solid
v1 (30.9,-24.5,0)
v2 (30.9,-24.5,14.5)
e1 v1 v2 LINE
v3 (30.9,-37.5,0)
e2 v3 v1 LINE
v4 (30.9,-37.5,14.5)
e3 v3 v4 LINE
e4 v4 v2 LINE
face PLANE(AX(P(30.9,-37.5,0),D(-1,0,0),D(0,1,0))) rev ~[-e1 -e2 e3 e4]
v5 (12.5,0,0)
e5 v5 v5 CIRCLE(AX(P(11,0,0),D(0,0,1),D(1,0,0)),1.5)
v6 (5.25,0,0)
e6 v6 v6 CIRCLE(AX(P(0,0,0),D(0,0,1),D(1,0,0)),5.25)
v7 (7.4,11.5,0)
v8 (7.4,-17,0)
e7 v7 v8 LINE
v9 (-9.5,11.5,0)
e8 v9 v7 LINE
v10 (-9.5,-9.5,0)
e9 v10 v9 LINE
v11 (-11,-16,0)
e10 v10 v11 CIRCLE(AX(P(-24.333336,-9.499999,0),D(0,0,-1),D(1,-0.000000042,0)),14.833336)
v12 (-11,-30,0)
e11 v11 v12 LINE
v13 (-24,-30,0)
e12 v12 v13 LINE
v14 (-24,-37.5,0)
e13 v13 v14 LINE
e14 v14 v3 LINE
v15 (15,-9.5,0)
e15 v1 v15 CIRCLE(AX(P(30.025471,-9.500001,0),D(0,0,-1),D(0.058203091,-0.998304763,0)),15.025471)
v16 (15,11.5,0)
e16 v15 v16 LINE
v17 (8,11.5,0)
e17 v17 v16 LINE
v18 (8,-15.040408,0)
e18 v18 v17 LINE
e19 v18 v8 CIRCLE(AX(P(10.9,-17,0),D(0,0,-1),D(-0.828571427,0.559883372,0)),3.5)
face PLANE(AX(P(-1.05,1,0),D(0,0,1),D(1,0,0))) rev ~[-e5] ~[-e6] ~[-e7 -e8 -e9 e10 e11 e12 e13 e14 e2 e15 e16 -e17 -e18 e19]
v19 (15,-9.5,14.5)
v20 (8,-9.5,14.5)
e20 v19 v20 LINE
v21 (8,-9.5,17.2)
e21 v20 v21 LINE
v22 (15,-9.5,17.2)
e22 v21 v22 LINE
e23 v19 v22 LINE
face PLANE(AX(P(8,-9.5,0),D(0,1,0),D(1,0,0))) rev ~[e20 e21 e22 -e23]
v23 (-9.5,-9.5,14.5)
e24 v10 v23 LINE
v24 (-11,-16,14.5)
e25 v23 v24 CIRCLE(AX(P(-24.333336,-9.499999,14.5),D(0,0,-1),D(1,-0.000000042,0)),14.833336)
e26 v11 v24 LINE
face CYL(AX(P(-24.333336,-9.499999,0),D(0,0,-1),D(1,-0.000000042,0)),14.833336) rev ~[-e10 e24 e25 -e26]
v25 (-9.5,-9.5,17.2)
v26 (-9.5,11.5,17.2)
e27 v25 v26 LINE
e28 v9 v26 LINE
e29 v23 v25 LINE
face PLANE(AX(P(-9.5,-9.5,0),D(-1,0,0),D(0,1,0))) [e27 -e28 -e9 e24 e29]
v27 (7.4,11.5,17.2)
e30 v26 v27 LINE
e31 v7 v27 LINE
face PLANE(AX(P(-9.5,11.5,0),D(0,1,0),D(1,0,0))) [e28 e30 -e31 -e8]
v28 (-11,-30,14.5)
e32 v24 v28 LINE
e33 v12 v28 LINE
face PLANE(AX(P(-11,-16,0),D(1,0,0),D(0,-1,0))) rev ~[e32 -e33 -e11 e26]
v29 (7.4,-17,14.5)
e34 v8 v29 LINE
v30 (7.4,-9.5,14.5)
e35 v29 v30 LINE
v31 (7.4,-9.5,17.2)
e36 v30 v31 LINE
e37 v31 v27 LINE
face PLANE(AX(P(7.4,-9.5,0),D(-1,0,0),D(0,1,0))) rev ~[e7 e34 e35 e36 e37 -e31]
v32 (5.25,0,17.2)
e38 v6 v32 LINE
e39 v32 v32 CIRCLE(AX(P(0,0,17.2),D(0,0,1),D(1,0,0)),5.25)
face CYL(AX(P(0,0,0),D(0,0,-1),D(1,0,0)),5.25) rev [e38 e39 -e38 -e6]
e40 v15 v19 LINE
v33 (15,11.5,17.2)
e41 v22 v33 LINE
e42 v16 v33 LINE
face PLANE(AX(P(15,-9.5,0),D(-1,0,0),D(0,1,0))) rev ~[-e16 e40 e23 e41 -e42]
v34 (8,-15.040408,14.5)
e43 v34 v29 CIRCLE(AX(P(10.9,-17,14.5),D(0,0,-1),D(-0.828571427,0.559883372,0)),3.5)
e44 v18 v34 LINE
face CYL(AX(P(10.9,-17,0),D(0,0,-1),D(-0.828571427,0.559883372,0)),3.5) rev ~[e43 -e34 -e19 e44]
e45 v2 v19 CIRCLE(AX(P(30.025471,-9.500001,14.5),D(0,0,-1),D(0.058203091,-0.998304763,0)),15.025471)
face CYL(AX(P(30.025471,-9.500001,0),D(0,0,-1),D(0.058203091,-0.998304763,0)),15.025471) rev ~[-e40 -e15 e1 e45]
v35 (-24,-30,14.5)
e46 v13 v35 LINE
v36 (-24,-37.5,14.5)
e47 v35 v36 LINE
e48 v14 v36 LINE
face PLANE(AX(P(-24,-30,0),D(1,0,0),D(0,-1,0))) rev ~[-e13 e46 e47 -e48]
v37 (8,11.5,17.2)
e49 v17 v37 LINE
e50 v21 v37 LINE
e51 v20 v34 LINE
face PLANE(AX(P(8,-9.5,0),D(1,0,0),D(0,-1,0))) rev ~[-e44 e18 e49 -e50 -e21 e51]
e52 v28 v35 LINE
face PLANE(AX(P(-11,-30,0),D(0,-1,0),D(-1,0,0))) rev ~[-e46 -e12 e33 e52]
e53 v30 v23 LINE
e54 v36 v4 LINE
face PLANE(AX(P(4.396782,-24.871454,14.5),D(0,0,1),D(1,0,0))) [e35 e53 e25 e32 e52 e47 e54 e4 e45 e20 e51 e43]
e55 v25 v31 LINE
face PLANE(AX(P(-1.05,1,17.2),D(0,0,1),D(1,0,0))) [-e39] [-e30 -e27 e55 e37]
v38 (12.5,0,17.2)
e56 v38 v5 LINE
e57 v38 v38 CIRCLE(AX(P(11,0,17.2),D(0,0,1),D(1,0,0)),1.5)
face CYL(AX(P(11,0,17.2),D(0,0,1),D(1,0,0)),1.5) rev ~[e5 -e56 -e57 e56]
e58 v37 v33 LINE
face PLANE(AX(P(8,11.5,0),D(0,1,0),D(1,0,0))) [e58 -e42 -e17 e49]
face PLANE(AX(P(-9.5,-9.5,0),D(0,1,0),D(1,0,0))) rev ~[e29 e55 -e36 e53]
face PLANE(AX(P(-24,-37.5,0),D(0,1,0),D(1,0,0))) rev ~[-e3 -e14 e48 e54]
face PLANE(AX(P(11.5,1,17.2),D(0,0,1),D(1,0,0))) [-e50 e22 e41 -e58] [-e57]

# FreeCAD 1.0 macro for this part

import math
import FreeCAD as App
import Part
import Sketcher

V = App.Vector


def add_polygon(sketch, points):
    """Adds a closed chain of lines whose ends are joined by coincident constraints."""
    first, n = sketch.GeometryCount, len(points)
    for a, b in zip(points, points[1:] + points[:1]):
        sketch.addGeometry(Part.LineSegment(App.Vector(*a, 0), App.Vector(*b, 0)), False)
    for i in range(n):
        sketch.addConstraint(Sketcher.Constraint("Coincident", first + i, 2, first + (i + 1) % n, 1))

doc = App.newDocument("Part")
body = doc.addObject("PartDesign::Body", "Body")

# Sketch on XY plane
sketch1 = doc.addObject("Sketcher::SketchObject", "Sketch")
body.addObject(sketch1)
sketch1.AttachmentSupport = (doc.XY_Plane, [""])
sketch1.MapMode = "FlatFace"
sketch1.addGeometry([
    Part.LineSegment(V(7.4, -9.5, 0), V(-9.5, -9.5, 0)),  # 0
    Part.ArcOfCircle(Part.Circle(V(-24.3, -9.5, 0), V(0, 0, 1), 14.8), math.radians(-26), math.radians(0)),  # 1
    Part.LineSegment(V(-11, -16, 0), V(-11, -30, 0)),  # 2
    Part.LineSegment(V(-11, -30, 0), V(-24, -30, 0)),  # 3
    Part.LineSegment(V(-24, -30, 0), V(-24, -37.5, 0)),  # 4
    Part.LineSegment(V(-24, -37.5, 0), V(30.9, -37.5, 0)),  # 5
    Part.LineSegment(V(30.9, -37.5, 0), V(30.9, -24.5, 0)),  # 6
    Part.ArcOfCircle(Part.Circle(V(30, -9.5, 0), V(0, 0, 1), 15), math.radians(180), math.radians(273)),  # 7
    Part.LineSegment(V(15, -9.5, 0), V(8, -9.5, 0)),  # 8
    Part.LineSegment(V(8, -9.5, 0), V(8, -15, 0)),  # 9
    Part.ArcOfCircle(Part.Circle(V(10.9, -17, 0), V(0, 0, 1), 3.5), math.radians(-180), math.radians(146)),  # 10
    Part.LineSegment(V(7.4, -17, 0), V(7.4, -9.5, 0)),  # 11
], False)
sketch1.addConstraint([
    Sketcher.Constraint("Coincident", 0, 2, 1, 2),
    Sketcher.Constraint("Coincident", 1, 1, 2, 1),
    Sketcher.Constraint("Coincident", 2, 2, 3, 1),
    Sketcher.Constraint("Coincident", 3, 2, 4, 1),
    Sketcher.Constraint("Coincident", 4, 2, 5, 1),
    Sketcher.Constraint("Coincident", 5, 2, 6, 1),
    Sketcher.Constraint("Coincident", 6, 2, 7, 2),
    Sketcher.Constraint("Coincident", 7, 1, 8, 1),
    Sketcher.Constraint("Coincident", 8, 2, 9, 1),
    Sketcher.Constraint("Coincident", 9, 2, 10, 2),
    Sketcher.Constraint("Tangent", 10, 1, 11, 1),
    Sketcher.Constraint("Coincident", 11, 2, 0, 1),
    Sketcher.Constraint("Horizontal", 0),
    Sketcher.Constraint("Vertical", 2),
    Sketcher.Constraint("Horizontal", 3),
    Sketcher.Constraint("Vertical", 4),
    Sketcher.Constraint("Horizontal", 5),
    Sketcher.Constraint("Vertical", 6),
    Sketcher.Constraint("Horizontal", 8),
    Sketcher.Constraint("Vertical", 9),
    Sketcher.Constraint("Vertical", 11),
    Sketcher.Constraint("Horizontal", 1, 3, 7, 3),
    Sketcher.Constraint("Horizontal", 7, 3, 0, 2),
    Sketcher.Constraint("Horizontal", 0, 2, 7, 1),
    Sketcher.Constraint("Equal", 3, 6),
    Sketcher.Constraint("Equal", 4, 11),
    Sketcher.Constraint("Radius", 10, 3.5),
    Sketcher.Constraint("DistanceX", 3, 2, 3, 1, 13.0),
    Sketcher.Constraint("DistanceX", 8, 2, 8, 1, 7.0),
    Sketcher.Constraint("DistanceY", 2, 2, 2, 1, 14.0),
    Sketcher.Constraint("DistanceX", 0, 2, 0, 1, 16.9),
    Sketcher.Constraint("DistanceX", 5, 1, 5, 2, 54.9),
    Sketcher.Constraint("DistanceY", 4, 2, 4, 1, 7.5),
    Sketcher.Constraint("DistanceY", 10, 3, -1, 1, 17.0),
    Sketcher.Constraint("DistanceX", 1, 1, -1, 1, 11.0),
    Sketcher.Constraint("DistanceY", 1, 1, -1, 1, 16.0),
    Sketcher.Constraint("DistanceX", -1, 1, 7, 1, 15.0),
    Sketcher.Constraint("DistanceX", 10, 3, 5, 2, 20.0),
])
pad1 = doc.addObject("PartDesign::Pad", "Pad")
body.addObject(pad1)
pad1.Profile = sketch1
pad1.Length = 14.5

# Sketch on XY plane
sketch2 = doc.addObject("Sketcher::SketchObject", "Sketch001")
body.addObject(sketch2)
sketch2.AttachmentSupport = (doc.XY_Plane, [""])
sketch2.MapMode = "FlatFace"
add_polygon(sketch2, [(-10, 12), (-10, -10), (7, -10), (7, 12)])  # lines 0-3
sketch2.addGeometry(Part.Circle(V(0, 0, 0), V(0, 0, 1), 5), False)  # 4
add_polygon(sketch2, [(8, 12), (8, -10), (15, -10), (15, 12)])  # lines 5-8
sketch2.addConstraint([
    Sketcher.Constraint("Vertical", 0),
    Sketcher.Constraint("Horizontal", 1),
    Sketcher.Constraint("Vertical", 2),
    Sketcher.Constraint("Horizontal", 3),
    Sketcher.Constraint("Vertical", 5),
    Sketcher.Constraint("Horizontal", 6),
    Sketcher.Constraint("Vertical", 7),
    Sketcher.Constraint("Horizontal", 8),
    Sketcher.Constraint("Coincident", 4, 3, -1, 1),
    Sketcher.Constraint("Horizontal", 1, 2, 5, 2),
    Sketcher.Constraint("Horizontal", 3, 2, 7, 2),
    Sketcher.Constraint("Diameter", 4, 10.5),
    Sketcher.Constraint("DistanceX", 6, 1, 6, 2, 7.0),
    Sketcher.Constraint("DistanceY", 0, 2, 0, 1, 21.0),
    Sketcher.Constraint("DistanceX", 1, 1, 1, 2, 16.9),
    Sketcher.Constraint("DistanceX", -1, 1, 5, 2, 8.0),
    Sketcher.Constraint("DistanceX", 0, 2, -1, 1, 9.5),
    Sketcher.Constraint("DistanceY", 0, 2, -1, 1, 9.5),
])
pad2 = doc.addObject("PartDesign::Pad", "Pad001")
body.addObject(pad2)
pad2.Profile = sketch2
pad2.Length = 17.2

# Sketch on XY plane
sketch3 = doc.addObject("Sketcher::SketchObject", "Sketch002")
body.addObject(sketch3)
sketch3.AttachmentSupport = (doc.XY_Plane, [""])
sketch3.MapMode = "FlatFace"
sketch3.AttachmentOffset = App.Placement(V(0, 0, 17.2), App.Rotation())
sketch3.addGeometry(Part.Circle(V(11, 0, 0), V(0, 0, 1), 1.5), False)
sketch3.addConstraint([
    Sketcher.Constraint("PointOnObject", 0, 3, -1),
    Sketcher.Constraint("Diameter", 0, 3.0),
    Sketcher.Constraint("DistanceX", -1, 1, 0, 3, 11.0),
])
pocket1 = doc.addObject("PartDesign::Pocket", "Pocket")
body.addObject(pocket1)
pocket1.Profile = sketch3
pocket1.Length = 25

doc.recompute()
